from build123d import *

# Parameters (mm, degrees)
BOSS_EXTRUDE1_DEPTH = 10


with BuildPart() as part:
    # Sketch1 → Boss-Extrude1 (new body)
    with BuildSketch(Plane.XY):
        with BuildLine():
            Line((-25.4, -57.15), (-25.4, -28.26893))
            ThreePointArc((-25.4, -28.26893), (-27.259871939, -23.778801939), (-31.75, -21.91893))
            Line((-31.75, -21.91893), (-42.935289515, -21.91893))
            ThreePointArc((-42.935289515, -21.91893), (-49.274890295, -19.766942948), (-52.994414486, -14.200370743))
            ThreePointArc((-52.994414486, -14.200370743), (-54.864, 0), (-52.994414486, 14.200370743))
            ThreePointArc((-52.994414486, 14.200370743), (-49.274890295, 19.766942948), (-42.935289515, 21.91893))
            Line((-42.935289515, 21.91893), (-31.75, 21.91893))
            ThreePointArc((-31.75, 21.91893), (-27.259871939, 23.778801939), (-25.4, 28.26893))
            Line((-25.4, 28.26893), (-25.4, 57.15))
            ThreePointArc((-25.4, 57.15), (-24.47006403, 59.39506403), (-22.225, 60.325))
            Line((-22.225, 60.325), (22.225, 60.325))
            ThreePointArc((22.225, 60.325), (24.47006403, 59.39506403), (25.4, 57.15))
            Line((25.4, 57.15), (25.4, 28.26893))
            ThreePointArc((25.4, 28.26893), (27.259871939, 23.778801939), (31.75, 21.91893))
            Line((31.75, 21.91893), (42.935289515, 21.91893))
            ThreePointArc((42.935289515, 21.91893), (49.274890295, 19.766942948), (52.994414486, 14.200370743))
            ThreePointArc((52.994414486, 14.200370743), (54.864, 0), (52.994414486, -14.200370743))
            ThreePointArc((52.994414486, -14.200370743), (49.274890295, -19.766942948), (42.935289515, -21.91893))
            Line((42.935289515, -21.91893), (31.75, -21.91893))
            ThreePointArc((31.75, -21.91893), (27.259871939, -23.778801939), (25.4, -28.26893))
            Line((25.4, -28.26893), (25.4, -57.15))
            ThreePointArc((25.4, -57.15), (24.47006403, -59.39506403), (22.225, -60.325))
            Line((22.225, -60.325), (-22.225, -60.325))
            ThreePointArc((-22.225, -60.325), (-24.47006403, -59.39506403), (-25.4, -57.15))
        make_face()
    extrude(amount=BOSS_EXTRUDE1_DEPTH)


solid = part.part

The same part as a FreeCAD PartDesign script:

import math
import FreeCAD as App
import Part
import Sketcher
Q = App.Units.Quantity

doc = App.newDocument("Part")
body = doc.addObject("PartDesign::Body", "Body")

sketch1 = body.newObject("Sketcher::SketchObject", "Sketch")
sketch1.AttachmentSupport = (doc.getObject("XY_Plane"), [""])
sketch1.MapMode = "FlatFace"
sketch1.addGeometry(Part.LineSegment(App.Vector(-25.4, -28.3, 0), App.Vector(-25.4, -57.1, 0)), False)
sketch1.addGeometry(Part.ArcOfCircle(Part.Circle(App.Vector(-22.2, -57.1, 0), App.Vector(0, 0, 1), 3.2), math.radians(-180), math.radians(-90)), False)
sketch1.addGeometry(Part.LineSegment(App.Vector(-22.2, -60.3, 0), App.Vector(22.2, -60.3, 0)), False)
sketch1.addGeometry(Part.ArcOfCircle(Part.Circle(App.Vector(22.2, -57.1, 0), App.Vector(0, 0, 1), 3.2), math.radians(-90), math.radians(0)), False)
sketch1.addGeometry(Part.LineSegment(App.Vector(25.4, -57.1, 0), App.Vector(25.4, -28.3, 0)), False)
sketch1.addGeometry(Part.ArcOfCircle(Part.Circle(App.Vector(31.7, -28.3, 0), App.Vector(0, 0, 1), 6.3), math.radians(90), math.radians(180)), False)
sketch1.addGeometry(Part.LineSegment(App.Vector(31.8, -21.9, 0), App.Vector(42.9, -21.9, 0)), False)
sketch1.addGeometry(Part.ArcOfCircle(Part.Circle(App.Vector(42.9, -11.5, 0), App.Vector(0, 0, 1), 10.4), math.radians(-90), math.radians(-15)), False)
sketch1.addGeometry(Part.ArcOfCircle(Part.Circle(App.Vector(0, 0, 0), App.Vector(0, 0, 1), 54.9), math.radians(-15), math.radians(15)), False)
sketch1.addGeometry(Part.ArcOfCircle(Part.Circle(App.Vector(42.9, 11.5, 0), App.Vector(0, 0, 1), 10.4), math.radians(15), math.radians(90)), False)
sketch1.addGeometry(Part.LineSegment(App.Vector(42.9, 21.9, 0), App.Vector(31.8, 21.9, 0)), False)
sketch1.addGeometry(Part.ArcOfCircle(Part.Circle(App.Vector(31.7, 28.3, 0), App.Vector(0, 0, 1), 6.3), math.radians(180), math.radians(270)), False)
sketch1.addGeometry(Part.LineSegment(App.Vector(25.4, 28.3, 0), App.Vector(25.4, 57.1, 0)), False)
sketch1.addGeometry(Part.ArcOfCircle(Part.Circle(App.Vector(22.2, 57.1, 0), App.Vector(0, 0, 1), 3.2), math.radians(0), math.radians(90)), False)
sketch1.addGeometry(Part.LineSegment(App.Vector(22.2, 60.3, 0), App.Vector(-22.2, 60.3, 0)), False)
sketch1.addGeometry(Part.ArcOfCircle(Part.Circle(App.Vector(-22.2, 57.1, 0), App.Vector(0, 0, 1), 3.2), math.radians(90), math.radians(180)), False)
sketch1.addGeometry(Part.LineSegment(App.Vector(-25.4, 57.1, 0), App.Vector(-25.4, 28.3, 0)), False)
sketch1.addGeometry(Part.ArcOfCircle(Part.Circle(App.Vector(-31.7, 28.3, 0), App.Vector(0, 0, 1), 6.3), math.radians(-90), math.radians(0)), False)
sketch1.addGeometry(Part.LineSegment(App.Vector(-31.8, 21.9, 0), App.Vector(-42.9, 21.9, 0)), False)
sketch1.addGeometry(Part.ArcOfCircle(Part.Circle(App.Vector(-42.9, 11.5, 0), App.Vector(0, 0, 1), 10.4), math.radians(90), math.radians(165)), False)
sketch1.addGeometry(Part.ArcOfCircle(Part.Circle(App.Vector(0, 0, 0), App.Vector(0, 0, 1), 54.9), math.radians(165), math.radians(195)), False)
sketch1.addGeometry(Part.ArcOfCircle(Part.Circle(App.Vector(-42.9, -11.5, 0), App.Vector(0, 0, 1), 10.4), math.radians(-165), math.radians(-90)), False)
sketch1.addGeometry(Part.LineSegment(App.Vector(-42.9, -21.9, 0), App.Vector(-31.8, -21.9, 0)), False)
sketch1.addGeometry(Part.ArcOfCircle(Part.Circle(App.Vector(-31.7, -28.3, 0), App.Vector(0, 0, 1), 6.3), math.radians(0), math.radians(90)), False)
sketch1.addConstraint(Sketcher.Constraint("Tangent", 0, 2, 1, 1))
sketch1.addConstraint(Sketcher.Constraint("Tangent", 1, 2, 2, 1))
sketch1.addConstraint(Sketcher.Constraint("Tangent", 2, 2, 3, 1))
sketch1.addConstraint(Sketcher.Constraint("Tangent", 3, 2, 4, 1))
sketch1.addConstraint(Sketcher.Constraint("Tangent", 4, 2, 5, 2))
sketch1.addConstraint(Sketcher.Constraint("Tangent", 5, 1, 6, 1))
sketch1.addConstraint(Sketcher.Constraint("Tangent", 6, 2, 7, 1))
sketch1.addConstraint(Sketcher.Constraint("Tangent", 7, 2, 8, 1))
sketch1.addConstraint(Sketcher.Constraint("Tangent", 8, 2, 9, 1))
sketch1.addConstraint(Sketcher.Constraint("Tangent", 9, 2, 10, 1))
sketch1.addConstraint(Sketcher.Constraint("Tangent", 10, 2, 11, 2))
sketch1.addConstraint(Sketcher.Constraint("Tangent", 11, 1, 12, 1))
sketch1.addConstraint(Sketcher.Constraint("Tangent", 12, 2, 13, 1))
sketch1.addConstraint(Sketcher.Constraint("Tangent", 13, 2, 14, 1))
sketch1.addConstraint(Sketcher.Constraint("Tangent", 14, 2, 15, 1))
sketch1.addConstraint(Sketcher.Constraint("Tangent", 15, 2, 16, 1))
sketch1.addConstraint(Sketcher.Constraint("Tangent", 16, 2, 17, 2))
sketch1.addConstraint(Sketcher.Constraint("Tangent", 17, 1, 18, 1))
sketch1.addConstraint(Sketcher.Constraint("Tangent", 18, 2, 19, 1))
sketch1.addConstraint(Sketcher.Constraint("Tangent", 19, 2, 20, 1))
sketch1.addConstraint(Sketcher.Constraint("Tangent", 20, 2, 21, 1))
sketch1.addConstraint(Sketcher.Constraint("Tangent", 21, 2, 22, 1))
sketch1.addConstraint(Sketcher.Constraint("Tangent", 22, 2, 23, 2))
sketch1.addConstraint(Sketcher.Constraint("Tangent", 23, 1, 0, 1))
sketch1.addConstraint(Sketcher.Constraint("Vertical", 0))
sketch1.addConstraint(Sketcher.Constraint("Horizontal", 2))
sketch1.addConstraint(Sketcher.Constraint("Vertical", 4))
sketch1.addConstraint(Sketcher.Constraint("Horizontal", 6))
sketch1.addConstraint(Sketcher.Constraint("Horizontal", 10))
sketch1.addConstraint(Sketcher.Constraint("Vertical", 12))
sketch1.addConstraint(Sketcher.Constraint("Horizontal", 14))
sketch1.addConstraint(Sketcher.Constraint("Vertical", 16))
sketch1.addConstraint(Sketcher.Constraint("Horizontal", 18))
sketch1.addConstraint(Sketcher.Constraint("Horizontal", 22))
sketch1.addConstraint(Sketcher.Constraint("Coincident", 8, 3, -1, 1))
sketch1.addConstraint(Sketcher.Constraint("Coincident", 20, 3, -1, 1))
sketch1.addConstraint(Sketcher.Constraint("Equal", 1, 3))
sketch1.addConstraint(Sketcher.Constraint("Equal", 7, 9))
sketch1.addConstraint(Sketcher.Constraint("Equal", 5, 11))
sketch1.addConstraint(Sketcher.Constraint("Equal", 3, 13))
sketch1.addConstraint(Sketcher.Constraint("Equal", 13, 15))
sketch1.addConstraint(Sketcher.Constraint("Equal", 11, 17))
sketch1.addConstraint(Sketcher.Constraint("Equal", 9, 19))
sketch1.addConstraint(Sketcher.Constraint("Equal", 8, 20))
sketch1.addConstraint(Sketcher.Constraint("Equal", 19, 21))
sketch1.addConstraint(Sketcher.Constraint("Equal", 17, 23))
sketch1.addConstraint(Sketcher.Constraint("Symmetric", 1, 3, 13, 3, -1, 1))
sketch1.addConstraint(Sketcher.Constraint("Symmetric", 5, 3, 17, 3, -1, 1))
sketch1.addConstraint(Sketcher.Constraint("Symmetric", 11, 3, 17, 3, -2))
sketch1.addConstraint(Sketcher.Constraint("Horizontal", 7, 3, 21, 3))
sketch1.addConstraint(Sketcher.Constraint("Radius", 5, Q("0.25 in")))
sketch1.addConstraint(Sketcher.Constraint("Radius", 7, Q("0.41 in")))
sketch1.addConstraint(Sketcher.Constraint("Radius", 8, Q("2.16 in")))
sketch1.addConstraint(Sketcher.Constraint("DistanceX", 0, 2, -1, 1, Q("1 in")))
sketch1.addConstraint(Sketcher.Constraint("Radius", 1, Q("0.125 in")))
sketch1.addConstraint(Sketcher.Constraint("DistanceY", 1, 3, -1, 1, Q("2.25 in")))
sketch1.addConstraint(Sketcher.Constraint("DistanceY", 7, 3, 9, 3, Q("0.9059 in")))
pad1 = body.newObject("PartDesign::Pad", "Pad")
pad1.Profile = sketch1
pad1.Length = 10

doc.recompute()
